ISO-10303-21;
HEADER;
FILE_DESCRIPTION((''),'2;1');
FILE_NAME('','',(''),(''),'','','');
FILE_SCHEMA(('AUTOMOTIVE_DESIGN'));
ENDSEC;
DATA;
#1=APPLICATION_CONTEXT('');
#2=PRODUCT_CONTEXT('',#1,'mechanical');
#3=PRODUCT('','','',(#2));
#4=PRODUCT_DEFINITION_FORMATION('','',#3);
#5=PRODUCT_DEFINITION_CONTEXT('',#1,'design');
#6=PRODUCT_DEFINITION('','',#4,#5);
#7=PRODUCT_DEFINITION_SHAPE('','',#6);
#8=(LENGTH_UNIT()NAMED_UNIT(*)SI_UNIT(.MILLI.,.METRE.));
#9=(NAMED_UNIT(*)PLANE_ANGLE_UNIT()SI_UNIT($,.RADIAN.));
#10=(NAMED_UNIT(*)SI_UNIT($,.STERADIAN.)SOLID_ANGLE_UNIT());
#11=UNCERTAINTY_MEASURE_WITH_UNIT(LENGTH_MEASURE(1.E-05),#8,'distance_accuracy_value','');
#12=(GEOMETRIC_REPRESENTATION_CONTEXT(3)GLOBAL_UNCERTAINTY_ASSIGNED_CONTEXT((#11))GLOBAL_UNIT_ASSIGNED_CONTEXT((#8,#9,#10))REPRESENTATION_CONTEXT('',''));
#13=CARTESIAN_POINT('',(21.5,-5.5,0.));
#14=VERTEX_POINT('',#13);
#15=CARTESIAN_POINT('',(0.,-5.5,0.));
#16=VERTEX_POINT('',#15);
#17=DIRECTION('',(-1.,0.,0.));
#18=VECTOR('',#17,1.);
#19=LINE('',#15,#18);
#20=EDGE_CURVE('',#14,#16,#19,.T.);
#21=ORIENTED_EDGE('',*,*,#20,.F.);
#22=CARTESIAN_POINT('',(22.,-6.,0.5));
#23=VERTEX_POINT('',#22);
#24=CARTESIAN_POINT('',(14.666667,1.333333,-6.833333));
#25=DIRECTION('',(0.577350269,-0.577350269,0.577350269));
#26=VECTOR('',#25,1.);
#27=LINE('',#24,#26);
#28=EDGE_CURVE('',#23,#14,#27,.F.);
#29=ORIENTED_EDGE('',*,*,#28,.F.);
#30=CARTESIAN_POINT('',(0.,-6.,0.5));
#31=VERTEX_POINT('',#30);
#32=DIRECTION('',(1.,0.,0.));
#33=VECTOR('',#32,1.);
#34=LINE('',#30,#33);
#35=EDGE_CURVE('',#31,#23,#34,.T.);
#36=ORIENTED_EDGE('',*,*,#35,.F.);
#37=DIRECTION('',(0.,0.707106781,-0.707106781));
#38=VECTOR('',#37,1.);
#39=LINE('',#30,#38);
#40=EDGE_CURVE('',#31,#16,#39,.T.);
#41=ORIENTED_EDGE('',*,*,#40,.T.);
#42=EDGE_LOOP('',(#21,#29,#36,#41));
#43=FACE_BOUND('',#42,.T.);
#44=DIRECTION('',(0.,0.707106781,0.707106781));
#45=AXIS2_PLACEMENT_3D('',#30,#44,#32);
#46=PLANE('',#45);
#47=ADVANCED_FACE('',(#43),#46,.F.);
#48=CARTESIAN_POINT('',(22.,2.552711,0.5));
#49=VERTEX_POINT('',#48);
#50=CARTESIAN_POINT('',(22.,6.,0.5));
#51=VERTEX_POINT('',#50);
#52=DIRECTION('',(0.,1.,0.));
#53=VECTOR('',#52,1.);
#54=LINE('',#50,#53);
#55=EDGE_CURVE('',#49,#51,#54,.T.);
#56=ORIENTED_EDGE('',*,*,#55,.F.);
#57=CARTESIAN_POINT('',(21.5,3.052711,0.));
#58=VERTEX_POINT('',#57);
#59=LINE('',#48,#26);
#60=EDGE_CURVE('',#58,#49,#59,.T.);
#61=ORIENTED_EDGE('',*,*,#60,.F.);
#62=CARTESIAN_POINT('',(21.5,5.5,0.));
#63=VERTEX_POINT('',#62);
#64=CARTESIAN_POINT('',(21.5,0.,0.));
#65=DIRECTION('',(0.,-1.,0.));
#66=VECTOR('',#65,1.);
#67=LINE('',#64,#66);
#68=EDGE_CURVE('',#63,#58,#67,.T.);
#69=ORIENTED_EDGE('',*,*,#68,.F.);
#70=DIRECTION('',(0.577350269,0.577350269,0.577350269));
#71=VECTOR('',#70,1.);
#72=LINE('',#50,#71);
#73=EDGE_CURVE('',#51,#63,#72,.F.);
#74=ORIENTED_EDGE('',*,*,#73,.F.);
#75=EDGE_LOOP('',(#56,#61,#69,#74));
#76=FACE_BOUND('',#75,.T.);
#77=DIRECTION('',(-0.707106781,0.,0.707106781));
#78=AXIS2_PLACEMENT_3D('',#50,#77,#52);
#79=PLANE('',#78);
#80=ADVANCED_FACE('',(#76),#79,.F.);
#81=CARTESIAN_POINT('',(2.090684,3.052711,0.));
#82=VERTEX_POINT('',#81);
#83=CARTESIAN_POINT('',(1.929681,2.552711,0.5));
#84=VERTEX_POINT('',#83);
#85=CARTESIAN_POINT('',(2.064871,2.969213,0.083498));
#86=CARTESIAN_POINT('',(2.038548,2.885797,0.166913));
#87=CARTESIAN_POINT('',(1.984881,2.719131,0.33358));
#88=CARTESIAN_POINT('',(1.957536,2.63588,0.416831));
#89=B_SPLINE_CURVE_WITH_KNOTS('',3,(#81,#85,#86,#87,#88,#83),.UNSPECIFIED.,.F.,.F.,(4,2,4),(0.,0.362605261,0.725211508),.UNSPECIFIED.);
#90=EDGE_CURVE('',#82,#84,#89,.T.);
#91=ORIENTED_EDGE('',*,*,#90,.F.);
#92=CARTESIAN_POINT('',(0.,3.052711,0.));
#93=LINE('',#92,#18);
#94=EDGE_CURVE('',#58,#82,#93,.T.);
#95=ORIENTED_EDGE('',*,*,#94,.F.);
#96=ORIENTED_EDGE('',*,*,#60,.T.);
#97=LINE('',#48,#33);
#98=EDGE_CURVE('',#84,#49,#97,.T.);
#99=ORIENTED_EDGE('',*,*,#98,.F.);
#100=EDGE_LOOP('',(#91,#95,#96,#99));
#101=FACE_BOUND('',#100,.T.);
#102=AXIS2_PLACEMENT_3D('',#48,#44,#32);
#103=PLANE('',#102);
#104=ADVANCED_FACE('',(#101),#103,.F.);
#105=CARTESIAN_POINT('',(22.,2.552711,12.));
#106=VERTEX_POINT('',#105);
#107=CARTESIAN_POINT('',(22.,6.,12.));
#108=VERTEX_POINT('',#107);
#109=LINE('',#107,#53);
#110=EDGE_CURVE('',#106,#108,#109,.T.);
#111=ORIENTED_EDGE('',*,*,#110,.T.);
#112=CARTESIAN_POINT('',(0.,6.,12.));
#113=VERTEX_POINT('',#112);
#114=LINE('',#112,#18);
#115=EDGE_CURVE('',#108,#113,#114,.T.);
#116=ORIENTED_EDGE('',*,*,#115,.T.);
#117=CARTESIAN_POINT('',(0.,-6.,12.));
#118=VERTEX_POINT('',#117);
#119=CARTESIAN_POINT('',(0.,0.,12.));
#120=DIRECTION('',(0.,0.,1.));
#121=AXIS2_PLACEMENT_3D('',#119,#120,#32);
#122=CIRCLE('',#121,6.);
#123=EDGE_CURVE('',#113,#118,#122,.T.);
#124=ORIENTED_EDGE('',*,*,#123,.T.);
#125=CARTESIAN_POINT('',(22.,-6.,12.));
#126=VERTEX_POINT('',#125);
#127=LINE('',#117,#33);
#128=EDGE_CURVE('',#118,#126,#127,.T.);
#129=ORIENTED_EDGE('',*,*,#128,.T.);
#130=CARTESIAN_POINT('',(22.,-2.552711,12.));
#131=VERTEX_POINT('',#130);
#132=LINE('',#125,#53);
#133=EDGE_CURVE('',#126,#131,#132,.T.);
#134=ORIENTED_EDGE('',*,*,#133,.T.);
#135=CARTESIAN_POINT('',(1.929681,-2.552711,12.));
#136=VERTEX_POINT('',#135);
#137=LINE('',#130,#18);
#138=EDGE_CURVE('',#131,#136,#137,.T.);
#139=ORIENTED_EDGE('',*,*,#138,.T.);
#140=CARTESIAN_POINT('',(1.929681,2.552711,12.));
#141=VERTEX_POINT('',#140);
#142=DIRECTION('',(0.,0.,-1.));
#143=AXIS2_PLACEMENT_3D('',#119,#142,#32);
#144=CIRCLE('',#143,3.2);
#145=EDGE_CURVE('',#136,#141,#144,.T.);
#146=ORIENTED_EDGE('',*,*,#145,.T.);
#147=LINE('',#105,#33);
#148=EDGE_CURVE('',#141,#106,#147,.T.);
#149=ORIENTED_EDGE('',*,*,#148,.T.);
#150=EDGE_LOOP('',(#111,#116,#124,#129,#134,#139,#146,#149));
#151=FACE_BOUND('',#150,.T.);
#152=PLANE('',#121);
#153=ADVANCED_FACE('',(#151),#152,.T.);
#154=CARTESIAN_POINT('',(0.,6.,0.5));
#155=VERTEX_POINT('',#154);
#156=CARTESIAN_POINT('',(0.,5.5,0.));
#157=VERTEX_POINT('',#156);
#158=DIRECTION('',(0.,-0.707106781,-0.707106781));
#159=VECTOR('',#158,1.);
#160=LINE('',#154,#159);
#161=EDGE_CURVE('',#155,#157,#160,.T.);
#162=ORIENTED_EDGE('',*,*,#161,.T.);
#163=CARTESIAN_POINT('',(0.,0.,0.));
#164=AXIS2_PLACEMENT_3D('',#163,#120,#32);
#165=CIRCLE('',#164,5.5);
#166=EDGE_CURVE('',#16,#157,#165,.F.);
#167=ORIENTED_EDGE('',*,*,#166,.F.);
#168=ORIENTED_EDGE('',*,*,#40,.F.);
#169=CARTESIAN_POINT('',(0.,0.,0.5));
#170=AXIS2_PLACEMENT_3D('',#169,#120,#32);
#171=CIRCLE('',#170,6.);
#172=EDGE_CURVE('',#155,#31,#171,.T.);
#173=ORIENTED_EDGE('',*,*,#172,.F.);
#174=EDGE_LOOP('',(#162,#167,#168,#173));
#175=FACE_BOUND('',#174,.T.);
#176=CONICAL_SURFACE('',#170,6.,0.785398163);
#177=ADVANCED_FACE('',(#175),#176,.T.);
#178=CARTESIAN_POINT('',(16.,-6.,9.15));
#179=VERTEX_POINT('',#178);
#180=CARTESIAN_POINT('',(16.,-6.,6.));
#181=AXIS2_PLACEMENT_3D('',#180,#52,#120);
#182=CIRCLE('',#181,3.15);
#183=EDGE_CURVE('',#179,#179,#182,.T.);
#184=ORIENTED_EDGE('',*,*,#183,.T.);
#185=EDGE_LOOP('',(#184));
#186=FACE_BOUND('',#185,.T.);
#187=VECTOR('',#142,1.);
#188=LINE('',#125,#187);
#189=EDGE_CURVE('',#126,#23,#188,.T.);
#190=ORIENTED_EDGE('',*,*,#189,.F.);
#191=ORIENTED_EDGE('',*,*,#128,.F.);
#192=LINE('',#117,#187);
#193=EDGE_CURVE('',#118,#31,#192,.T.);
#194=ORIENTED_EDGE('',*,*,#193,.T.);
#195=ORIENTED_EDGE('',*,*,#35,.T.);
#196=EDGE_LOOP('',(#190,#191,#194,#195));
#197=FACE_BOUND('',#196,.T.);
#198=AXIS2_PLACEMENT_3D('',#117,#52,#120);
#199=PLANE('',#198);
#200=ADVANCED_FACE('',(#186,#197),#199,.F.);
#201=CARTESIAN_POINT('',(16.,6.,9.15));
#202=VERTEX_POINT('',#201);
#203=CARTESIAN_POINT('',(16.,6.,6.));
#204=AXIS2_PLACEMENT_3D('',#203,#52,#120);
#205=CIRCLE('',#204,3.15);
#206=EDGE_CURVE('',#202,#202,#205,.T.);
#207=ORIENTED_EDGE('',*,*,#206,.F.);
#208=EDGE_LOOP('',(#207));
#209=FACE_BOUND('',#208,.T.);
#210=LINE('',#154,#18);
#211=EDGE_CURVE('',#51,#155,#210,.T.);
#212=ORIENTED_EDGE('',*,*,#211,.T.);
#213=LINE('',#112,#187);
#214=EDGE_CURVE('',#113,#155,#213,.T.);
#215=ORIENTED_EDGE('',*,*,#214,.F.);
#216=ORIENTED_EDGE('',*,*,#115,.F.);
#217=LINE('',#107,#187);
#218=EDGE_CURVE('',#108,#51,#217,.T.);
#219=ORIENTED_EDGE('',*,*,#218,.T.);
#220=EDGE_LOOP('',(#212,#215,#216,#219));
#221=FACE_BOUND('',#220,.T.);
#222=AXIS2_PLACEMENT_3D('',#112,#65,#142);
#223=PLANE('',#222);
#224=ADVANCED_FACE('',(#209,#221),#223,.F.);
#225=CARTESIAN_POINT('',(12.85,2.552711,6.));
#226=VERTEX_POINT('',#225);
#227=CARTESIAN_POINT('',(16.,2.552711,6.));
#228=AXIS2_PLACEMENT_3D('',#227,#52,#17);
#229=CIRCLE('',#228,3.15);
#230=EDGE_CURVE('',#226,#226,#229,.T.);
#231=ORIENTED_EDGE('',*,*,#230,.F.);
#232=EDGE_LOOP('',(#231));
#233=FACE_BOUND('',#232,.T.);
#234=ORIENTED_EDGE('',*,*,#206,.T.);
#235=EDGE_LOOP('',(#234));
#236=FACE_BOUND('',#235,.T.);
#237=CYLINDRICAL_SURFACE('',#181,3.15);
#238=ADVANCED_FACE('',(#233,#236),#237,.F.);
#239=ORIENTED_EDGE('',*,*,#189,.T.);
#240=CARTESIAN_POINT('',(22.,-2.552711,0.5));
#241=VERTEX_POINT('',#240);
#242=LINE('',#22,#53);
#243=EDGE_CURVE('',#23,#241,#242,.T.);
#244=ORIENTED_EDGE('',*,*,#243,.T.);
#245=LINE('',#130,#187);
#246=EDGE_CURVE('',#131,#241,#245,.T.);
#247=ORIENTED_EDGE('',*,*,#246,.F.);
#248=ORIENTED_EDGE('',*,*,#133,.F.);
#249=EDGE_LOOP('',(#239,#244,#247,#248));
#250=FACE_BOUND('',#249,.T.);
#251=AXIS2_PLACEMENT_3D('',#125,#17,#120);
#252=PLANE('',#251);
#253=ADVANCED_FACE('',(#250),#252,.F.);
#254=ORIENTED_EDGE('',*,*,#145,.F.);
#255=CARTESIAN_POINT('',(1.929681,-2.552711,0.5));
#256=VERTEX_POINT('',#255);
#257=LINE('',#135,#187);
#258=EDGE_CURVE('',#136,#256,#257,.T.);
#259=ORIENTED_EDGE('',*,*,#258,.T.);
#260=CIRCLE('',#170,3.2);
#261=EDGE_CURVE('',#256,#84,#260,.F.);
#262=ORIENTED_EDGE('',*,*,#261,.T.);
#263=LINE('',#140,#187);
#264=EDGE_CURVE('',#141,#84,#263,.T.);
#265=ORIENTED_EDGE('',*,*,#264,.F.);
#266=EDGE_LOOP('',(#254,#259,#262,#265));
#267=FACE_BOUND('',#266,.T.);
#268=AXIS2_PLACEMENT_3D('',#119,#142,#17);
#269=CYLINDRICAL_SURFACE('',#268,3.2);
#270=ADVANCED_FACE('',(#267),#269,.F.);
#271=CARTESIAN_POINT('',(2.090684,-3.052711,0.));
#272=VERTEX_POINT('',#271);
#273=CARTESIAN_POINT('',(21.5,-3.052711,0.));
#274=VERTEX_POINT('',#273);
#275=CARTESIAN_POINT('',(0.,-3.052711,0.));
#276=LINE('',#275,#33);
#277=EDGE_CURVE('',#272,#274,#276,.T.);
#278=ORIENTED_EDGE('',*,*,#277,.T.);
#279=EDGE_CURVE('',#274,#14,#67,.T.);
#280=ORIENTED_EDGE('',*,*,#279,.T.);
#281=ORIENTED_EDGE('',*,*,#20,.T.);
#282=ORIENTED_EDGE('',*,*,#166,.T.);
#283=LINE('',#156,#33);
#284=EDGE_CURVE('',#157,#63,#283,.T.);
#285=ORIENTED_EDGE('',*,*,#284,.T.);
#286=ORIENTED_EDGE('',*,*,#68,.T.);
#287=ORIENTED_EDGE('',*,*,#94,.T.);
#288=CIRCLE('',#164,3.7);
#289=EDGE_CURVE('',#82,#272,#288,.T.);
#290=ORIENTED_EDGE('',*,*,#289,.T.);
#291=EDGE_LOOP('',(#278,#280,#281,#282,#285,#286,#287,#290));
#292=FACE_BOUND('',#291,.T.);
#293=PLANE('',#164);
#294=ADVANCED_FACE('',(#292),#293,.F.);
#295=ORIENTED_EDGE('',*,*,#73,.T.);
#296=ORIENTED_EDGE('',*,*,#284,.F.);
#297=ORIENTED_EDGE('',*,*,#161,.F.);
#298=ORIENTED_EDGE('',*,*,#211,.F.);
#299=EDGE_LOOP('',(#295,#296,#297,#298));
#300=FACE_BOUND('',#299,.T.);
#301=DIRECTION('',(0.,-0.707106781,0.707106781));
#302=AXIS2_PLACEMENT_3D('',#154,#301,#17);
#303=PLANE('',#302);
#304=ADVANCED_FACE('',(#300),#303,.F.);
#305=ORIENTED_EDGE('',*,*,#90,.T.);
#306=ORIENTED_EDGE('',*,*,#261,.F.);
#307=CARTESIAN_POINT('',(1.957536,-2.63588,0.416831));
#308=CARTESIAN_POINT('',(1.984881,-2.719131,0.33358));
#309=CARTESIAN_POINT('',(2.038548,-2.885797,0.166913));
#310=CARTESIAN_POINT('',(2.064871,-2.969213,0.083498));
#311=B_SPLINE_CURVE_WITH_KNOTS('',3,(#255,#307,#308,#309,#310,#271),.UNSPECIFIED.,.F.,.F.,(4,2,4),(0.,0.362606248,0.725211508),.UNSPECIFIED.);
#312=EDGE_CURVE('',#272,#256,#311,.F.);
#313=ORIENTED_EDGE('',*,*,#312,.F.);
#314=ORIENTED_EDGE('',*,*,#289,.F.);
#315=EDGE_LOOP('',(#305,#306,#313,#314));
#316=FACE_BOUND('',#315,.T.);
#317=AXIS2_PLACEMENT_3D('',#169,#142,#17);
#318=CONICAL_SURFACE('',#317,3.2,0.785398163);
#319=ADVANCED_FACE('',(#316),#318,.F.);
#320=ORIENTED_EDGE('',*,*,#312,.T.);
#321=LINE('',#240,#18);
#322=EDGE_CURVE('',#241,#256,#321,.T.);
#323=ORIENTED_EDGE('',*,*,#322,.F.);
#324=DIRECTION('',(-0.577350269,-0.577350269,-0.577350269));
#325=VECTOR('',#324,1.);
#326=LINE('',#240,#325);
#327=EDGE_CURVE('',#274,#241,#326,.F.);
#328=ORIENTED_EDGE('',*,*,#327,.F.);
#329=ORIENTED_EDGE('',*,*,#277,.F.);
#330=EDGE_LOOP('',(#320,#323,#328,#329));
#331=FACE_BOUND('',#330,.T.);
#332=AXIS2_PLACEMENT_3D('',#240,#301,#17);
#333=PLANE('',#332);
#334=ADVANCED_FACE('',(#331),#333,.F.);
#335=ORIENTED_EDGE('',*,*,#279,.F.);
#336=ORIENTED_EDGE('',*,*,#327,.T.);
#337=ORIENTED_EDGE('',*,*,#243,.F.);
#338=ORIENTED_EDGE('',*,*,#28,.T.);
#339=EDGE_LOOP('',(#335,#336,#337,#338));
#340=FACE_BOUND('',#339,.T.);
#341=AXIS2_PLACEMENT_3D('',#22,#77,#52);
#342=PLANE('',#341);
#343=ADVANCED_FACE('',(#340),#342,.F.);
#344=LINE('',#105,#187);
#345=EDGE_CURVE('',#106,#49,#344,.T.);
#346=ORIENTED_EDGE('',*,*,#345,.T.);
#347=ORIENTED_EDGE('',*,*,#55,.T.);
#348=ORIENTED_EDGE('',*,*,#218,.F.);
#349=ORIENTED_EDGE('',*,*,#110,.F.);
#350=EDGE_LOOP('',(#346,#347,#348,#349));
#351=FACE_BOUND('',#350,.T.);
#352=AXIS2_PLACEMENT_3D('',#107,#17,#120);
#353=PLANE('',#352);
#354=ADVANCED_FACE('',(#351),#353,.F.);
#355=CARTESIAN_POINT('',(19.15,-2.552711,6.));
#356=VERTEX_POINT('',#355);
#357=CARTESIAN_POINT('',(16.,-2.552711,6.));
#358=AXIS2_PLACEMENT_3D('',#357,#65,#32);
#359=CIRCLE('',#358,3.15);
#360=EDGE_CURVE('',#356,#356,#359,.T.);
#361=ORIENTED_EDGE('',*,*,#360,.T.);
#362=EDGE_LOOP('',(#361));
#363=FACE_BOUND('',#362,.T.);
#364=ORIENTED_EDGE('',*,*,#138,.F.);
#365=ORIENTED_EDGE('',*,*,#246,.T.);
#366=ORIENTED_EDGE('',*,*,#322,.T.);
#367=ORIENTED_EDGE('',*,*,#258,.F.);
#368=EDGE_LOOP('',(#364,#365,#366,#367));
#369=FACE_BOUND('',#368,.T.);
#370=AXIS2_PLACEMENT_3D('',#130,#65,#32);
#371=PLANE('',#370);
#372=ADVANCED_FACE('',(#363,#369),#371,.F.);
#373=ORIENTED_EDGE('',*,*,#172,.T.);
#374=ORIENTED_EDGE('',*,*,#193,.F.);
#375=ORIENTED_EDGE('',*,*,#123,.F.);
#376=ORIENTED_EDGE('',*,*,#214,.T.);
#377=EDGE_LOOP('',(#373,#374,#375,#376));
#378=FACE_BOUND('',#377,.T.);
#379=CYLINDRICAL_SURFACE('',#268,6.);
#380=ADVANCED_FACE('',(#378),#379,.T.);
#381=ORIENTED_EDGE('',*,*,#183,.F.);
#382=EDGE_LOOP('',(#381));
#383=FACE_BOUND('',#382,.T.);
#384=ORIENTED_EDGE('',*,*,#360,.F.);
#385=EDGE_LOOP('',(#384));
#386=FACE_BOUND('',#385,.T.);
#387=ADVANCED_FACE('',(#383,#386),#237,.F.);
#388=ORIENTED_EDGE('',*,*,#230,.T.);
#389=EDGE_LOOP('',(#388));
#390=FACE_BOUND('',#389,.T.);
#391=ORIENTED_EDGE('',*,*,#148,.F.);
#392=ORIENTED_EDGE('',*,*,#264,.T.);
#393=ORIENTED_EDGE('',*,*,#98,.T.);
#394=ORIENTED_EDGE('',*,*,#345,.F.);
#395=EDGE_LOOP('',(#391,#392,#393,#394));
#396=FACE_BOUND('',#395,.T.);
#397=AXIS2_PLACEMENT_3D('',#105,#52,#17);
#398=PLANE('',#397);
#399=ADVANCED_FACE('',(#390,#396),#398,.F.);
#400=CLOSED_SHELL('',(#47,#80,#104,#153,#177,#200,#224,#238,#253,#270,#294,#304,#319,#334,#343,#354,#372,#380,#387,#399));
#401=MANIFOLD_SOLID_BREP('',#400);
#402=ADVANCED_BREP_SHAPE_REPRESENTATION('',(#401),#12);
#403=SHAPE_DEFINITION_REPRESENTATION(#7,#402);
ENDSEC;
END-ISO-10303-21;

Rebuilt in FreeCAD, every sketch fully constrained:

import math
import FreeCAD as App
import Part
import Sketcher

V = App.Vector
Q = App.Units.Quantity


def edges_at(feature, points):
    """Names of the edges that pass closest to the given points."""
    edges = feature.Shape.Edges
    near = lambda p: min(range(len(edges)), key=lambda i: edges[i].distToShape(Part.Vertex(*p))[0])
    return sorted({f"Edge{near(p) + 1}" for p in points})

doc = App.newDocument("Part")
body = doc.addObject("PartDesign::Body", "Body")

sketch1 = body.newObject("Sketcher::SketchObject", "Sketch")
sketch1.AttachmentSupport = (doc.getObject("XY_Plane"), [""])
sketch1.MapMode = "FlatFace"
sketch1.addGeometry(Part.LineSegment(V(22, 6, 0), V(0, 6, 0)), False)
sketch1.addGeometry(Part.ArcOfCircle(Part.Circle(V(0, 0, 0), V(0, 0, 1), 6), math.radians(90), math.radians(270)), False)
sketch1.addGeometry(Part.LineSegment(V(0, -6, 0), V(22, -6, 0)), False)
sketch1.addGeometry(Part.LineSegment(V(22, -6, 0), V(22, -2.6, 0)), False)
sketch1.addGeometry(Part.LineSegment(V(22, -2.6, 0), V(1.9, -2.6, 0)), False)
sketch1.addGeometry(Part.ArcOfCircle(Part.Circle(V(0, 0, 0), V(0, 0, 1), 3.2), math.radians(53), math.radians(307)), False)
sketch1.addGeometry(Part.LineSegment(V(1.9, 2.6, 0), V(22, 2.6, 0)), False)
sketch1.addGeometry(Part.LineSegment(V(22, 2.6, 0), V(22, 6, 0)), False)
sketch1.addConstraint(Sketcher.Constraint("Tangent", 0, 2, 1, 1))
sketch1.addConstraint(Sketcher.Constraint("Tangent", 1, 2, 2, 1))
sketch1.addConstraint(Sketcher.Constraint("Coincident", 2, 2, 3, 1))
sketch1.addConstraint(Sketcher.Constraint("Coincident", 3, 2, 4, 1))
sketch1.addConstraint(Sketcher.Constraint("Coincident", 4, 2, 5, 2))
sketch1.addConstraint(Sketcher.Constraint("Coincident", 5, 1, 6, 1))
sketch1.addConstraint(Sketcher.Constraint("Coincident", 6, 2, 7, 1))
sketch1.addConstraint(Sketcher.Constraint("Coincident", 7, 2, 0, 1))
sketch1.addConstraint(Sketcher.Constraint("Horizontal", 0))
sketch1.addConstraint(Sketcher.Constraint("Horizontal", 2))
sketch1.addConstraint(Sketcher.Constraint("Vertical", 3))
sketch1.addConstraint(Sketcher.Constraint("Horizontal", 4))
sketch1.addConstraint(Sketcher.Constraint("Horizontal", 6))
sketch1.addConstraint(Sketcher.Constraint("Vertical", 7))
sketch1.addConstraint(Sketcher.Constraint("Coincident", 1, 3, -1, 1))
sketch1.addConstraint(Sketcher.Constraint("Coincident", 5, 3, -1, 1))
sketch1.addConstraint(Sketcher.Constraint("Symmetric", 3, 2, 6, 2, -1))
sketch1.addConstraint(Sketcher.Constraint("Radius", 1, Q("6 mm")))
sketch1.addConstraint(Sketcher.Constraint("Radius", 5, Q("3.2 mm")))
sketch1.addConstraint(Sketcher.Constraint("DistanceX", 0, 2, 0, 1, Q("22 mm")))
sketch1.addConstraint(Sketcher.Constraint("DistanceX", 4, 2, 4, 1, Q("20.070319 mm")))
pad1 = body.newObject("PartDesign::Pad", "Pad")
pad1.Profile = sketch1
pad1.Length = 12

sketch2 = body.newObject("Sketcher::SketchObject", "Sketch001")
sketch2.AttachmentSupport = (doc.getObject("XZ_Plane"), [""])
sketch2.MapMode = "FlatFace"
sketch2.addGeometry(Part.Circle(V(16, 6, 0), V(0, 0, 1), 3.1), False)
sketch2.addConstraint(Sketcher.Constraint("Diameter", 0, Q("6.3 mm")))
sketch2.addConstraint(Sketcher.Constraint("DistanceX", -1, 1, 0, 3, Q("16 mm")))
sketch2.addConstraint(Sketcher.Constraint("DistanceY", -1, 1, 0, 3, Q("6 mm")))
pocket1 = body.newObject("PartDesign::Pocket", "Pocket")
pocket1.Profile = sketch2
pocket1.Type = "ThroughAll"
pocket1.Midplane = True
doc.recompute()

chamfer = body.newObject("PartDesign::Chamfer", "Chamfer")
chamfer.Base = (pocket1, edges_at(pocket1, [
    (11.965, 2.553, 0),
    (-3.2, 0, 0),
    (11.965, -2.553, 0),
    (22, -4.276, 0),
    (11, -6, 0),
    (-6, 0, 0),
    (11, 6, 0),
    (22, 4.276, 0),
]))
chamfer.Size = 0.5

doc.recompute()
